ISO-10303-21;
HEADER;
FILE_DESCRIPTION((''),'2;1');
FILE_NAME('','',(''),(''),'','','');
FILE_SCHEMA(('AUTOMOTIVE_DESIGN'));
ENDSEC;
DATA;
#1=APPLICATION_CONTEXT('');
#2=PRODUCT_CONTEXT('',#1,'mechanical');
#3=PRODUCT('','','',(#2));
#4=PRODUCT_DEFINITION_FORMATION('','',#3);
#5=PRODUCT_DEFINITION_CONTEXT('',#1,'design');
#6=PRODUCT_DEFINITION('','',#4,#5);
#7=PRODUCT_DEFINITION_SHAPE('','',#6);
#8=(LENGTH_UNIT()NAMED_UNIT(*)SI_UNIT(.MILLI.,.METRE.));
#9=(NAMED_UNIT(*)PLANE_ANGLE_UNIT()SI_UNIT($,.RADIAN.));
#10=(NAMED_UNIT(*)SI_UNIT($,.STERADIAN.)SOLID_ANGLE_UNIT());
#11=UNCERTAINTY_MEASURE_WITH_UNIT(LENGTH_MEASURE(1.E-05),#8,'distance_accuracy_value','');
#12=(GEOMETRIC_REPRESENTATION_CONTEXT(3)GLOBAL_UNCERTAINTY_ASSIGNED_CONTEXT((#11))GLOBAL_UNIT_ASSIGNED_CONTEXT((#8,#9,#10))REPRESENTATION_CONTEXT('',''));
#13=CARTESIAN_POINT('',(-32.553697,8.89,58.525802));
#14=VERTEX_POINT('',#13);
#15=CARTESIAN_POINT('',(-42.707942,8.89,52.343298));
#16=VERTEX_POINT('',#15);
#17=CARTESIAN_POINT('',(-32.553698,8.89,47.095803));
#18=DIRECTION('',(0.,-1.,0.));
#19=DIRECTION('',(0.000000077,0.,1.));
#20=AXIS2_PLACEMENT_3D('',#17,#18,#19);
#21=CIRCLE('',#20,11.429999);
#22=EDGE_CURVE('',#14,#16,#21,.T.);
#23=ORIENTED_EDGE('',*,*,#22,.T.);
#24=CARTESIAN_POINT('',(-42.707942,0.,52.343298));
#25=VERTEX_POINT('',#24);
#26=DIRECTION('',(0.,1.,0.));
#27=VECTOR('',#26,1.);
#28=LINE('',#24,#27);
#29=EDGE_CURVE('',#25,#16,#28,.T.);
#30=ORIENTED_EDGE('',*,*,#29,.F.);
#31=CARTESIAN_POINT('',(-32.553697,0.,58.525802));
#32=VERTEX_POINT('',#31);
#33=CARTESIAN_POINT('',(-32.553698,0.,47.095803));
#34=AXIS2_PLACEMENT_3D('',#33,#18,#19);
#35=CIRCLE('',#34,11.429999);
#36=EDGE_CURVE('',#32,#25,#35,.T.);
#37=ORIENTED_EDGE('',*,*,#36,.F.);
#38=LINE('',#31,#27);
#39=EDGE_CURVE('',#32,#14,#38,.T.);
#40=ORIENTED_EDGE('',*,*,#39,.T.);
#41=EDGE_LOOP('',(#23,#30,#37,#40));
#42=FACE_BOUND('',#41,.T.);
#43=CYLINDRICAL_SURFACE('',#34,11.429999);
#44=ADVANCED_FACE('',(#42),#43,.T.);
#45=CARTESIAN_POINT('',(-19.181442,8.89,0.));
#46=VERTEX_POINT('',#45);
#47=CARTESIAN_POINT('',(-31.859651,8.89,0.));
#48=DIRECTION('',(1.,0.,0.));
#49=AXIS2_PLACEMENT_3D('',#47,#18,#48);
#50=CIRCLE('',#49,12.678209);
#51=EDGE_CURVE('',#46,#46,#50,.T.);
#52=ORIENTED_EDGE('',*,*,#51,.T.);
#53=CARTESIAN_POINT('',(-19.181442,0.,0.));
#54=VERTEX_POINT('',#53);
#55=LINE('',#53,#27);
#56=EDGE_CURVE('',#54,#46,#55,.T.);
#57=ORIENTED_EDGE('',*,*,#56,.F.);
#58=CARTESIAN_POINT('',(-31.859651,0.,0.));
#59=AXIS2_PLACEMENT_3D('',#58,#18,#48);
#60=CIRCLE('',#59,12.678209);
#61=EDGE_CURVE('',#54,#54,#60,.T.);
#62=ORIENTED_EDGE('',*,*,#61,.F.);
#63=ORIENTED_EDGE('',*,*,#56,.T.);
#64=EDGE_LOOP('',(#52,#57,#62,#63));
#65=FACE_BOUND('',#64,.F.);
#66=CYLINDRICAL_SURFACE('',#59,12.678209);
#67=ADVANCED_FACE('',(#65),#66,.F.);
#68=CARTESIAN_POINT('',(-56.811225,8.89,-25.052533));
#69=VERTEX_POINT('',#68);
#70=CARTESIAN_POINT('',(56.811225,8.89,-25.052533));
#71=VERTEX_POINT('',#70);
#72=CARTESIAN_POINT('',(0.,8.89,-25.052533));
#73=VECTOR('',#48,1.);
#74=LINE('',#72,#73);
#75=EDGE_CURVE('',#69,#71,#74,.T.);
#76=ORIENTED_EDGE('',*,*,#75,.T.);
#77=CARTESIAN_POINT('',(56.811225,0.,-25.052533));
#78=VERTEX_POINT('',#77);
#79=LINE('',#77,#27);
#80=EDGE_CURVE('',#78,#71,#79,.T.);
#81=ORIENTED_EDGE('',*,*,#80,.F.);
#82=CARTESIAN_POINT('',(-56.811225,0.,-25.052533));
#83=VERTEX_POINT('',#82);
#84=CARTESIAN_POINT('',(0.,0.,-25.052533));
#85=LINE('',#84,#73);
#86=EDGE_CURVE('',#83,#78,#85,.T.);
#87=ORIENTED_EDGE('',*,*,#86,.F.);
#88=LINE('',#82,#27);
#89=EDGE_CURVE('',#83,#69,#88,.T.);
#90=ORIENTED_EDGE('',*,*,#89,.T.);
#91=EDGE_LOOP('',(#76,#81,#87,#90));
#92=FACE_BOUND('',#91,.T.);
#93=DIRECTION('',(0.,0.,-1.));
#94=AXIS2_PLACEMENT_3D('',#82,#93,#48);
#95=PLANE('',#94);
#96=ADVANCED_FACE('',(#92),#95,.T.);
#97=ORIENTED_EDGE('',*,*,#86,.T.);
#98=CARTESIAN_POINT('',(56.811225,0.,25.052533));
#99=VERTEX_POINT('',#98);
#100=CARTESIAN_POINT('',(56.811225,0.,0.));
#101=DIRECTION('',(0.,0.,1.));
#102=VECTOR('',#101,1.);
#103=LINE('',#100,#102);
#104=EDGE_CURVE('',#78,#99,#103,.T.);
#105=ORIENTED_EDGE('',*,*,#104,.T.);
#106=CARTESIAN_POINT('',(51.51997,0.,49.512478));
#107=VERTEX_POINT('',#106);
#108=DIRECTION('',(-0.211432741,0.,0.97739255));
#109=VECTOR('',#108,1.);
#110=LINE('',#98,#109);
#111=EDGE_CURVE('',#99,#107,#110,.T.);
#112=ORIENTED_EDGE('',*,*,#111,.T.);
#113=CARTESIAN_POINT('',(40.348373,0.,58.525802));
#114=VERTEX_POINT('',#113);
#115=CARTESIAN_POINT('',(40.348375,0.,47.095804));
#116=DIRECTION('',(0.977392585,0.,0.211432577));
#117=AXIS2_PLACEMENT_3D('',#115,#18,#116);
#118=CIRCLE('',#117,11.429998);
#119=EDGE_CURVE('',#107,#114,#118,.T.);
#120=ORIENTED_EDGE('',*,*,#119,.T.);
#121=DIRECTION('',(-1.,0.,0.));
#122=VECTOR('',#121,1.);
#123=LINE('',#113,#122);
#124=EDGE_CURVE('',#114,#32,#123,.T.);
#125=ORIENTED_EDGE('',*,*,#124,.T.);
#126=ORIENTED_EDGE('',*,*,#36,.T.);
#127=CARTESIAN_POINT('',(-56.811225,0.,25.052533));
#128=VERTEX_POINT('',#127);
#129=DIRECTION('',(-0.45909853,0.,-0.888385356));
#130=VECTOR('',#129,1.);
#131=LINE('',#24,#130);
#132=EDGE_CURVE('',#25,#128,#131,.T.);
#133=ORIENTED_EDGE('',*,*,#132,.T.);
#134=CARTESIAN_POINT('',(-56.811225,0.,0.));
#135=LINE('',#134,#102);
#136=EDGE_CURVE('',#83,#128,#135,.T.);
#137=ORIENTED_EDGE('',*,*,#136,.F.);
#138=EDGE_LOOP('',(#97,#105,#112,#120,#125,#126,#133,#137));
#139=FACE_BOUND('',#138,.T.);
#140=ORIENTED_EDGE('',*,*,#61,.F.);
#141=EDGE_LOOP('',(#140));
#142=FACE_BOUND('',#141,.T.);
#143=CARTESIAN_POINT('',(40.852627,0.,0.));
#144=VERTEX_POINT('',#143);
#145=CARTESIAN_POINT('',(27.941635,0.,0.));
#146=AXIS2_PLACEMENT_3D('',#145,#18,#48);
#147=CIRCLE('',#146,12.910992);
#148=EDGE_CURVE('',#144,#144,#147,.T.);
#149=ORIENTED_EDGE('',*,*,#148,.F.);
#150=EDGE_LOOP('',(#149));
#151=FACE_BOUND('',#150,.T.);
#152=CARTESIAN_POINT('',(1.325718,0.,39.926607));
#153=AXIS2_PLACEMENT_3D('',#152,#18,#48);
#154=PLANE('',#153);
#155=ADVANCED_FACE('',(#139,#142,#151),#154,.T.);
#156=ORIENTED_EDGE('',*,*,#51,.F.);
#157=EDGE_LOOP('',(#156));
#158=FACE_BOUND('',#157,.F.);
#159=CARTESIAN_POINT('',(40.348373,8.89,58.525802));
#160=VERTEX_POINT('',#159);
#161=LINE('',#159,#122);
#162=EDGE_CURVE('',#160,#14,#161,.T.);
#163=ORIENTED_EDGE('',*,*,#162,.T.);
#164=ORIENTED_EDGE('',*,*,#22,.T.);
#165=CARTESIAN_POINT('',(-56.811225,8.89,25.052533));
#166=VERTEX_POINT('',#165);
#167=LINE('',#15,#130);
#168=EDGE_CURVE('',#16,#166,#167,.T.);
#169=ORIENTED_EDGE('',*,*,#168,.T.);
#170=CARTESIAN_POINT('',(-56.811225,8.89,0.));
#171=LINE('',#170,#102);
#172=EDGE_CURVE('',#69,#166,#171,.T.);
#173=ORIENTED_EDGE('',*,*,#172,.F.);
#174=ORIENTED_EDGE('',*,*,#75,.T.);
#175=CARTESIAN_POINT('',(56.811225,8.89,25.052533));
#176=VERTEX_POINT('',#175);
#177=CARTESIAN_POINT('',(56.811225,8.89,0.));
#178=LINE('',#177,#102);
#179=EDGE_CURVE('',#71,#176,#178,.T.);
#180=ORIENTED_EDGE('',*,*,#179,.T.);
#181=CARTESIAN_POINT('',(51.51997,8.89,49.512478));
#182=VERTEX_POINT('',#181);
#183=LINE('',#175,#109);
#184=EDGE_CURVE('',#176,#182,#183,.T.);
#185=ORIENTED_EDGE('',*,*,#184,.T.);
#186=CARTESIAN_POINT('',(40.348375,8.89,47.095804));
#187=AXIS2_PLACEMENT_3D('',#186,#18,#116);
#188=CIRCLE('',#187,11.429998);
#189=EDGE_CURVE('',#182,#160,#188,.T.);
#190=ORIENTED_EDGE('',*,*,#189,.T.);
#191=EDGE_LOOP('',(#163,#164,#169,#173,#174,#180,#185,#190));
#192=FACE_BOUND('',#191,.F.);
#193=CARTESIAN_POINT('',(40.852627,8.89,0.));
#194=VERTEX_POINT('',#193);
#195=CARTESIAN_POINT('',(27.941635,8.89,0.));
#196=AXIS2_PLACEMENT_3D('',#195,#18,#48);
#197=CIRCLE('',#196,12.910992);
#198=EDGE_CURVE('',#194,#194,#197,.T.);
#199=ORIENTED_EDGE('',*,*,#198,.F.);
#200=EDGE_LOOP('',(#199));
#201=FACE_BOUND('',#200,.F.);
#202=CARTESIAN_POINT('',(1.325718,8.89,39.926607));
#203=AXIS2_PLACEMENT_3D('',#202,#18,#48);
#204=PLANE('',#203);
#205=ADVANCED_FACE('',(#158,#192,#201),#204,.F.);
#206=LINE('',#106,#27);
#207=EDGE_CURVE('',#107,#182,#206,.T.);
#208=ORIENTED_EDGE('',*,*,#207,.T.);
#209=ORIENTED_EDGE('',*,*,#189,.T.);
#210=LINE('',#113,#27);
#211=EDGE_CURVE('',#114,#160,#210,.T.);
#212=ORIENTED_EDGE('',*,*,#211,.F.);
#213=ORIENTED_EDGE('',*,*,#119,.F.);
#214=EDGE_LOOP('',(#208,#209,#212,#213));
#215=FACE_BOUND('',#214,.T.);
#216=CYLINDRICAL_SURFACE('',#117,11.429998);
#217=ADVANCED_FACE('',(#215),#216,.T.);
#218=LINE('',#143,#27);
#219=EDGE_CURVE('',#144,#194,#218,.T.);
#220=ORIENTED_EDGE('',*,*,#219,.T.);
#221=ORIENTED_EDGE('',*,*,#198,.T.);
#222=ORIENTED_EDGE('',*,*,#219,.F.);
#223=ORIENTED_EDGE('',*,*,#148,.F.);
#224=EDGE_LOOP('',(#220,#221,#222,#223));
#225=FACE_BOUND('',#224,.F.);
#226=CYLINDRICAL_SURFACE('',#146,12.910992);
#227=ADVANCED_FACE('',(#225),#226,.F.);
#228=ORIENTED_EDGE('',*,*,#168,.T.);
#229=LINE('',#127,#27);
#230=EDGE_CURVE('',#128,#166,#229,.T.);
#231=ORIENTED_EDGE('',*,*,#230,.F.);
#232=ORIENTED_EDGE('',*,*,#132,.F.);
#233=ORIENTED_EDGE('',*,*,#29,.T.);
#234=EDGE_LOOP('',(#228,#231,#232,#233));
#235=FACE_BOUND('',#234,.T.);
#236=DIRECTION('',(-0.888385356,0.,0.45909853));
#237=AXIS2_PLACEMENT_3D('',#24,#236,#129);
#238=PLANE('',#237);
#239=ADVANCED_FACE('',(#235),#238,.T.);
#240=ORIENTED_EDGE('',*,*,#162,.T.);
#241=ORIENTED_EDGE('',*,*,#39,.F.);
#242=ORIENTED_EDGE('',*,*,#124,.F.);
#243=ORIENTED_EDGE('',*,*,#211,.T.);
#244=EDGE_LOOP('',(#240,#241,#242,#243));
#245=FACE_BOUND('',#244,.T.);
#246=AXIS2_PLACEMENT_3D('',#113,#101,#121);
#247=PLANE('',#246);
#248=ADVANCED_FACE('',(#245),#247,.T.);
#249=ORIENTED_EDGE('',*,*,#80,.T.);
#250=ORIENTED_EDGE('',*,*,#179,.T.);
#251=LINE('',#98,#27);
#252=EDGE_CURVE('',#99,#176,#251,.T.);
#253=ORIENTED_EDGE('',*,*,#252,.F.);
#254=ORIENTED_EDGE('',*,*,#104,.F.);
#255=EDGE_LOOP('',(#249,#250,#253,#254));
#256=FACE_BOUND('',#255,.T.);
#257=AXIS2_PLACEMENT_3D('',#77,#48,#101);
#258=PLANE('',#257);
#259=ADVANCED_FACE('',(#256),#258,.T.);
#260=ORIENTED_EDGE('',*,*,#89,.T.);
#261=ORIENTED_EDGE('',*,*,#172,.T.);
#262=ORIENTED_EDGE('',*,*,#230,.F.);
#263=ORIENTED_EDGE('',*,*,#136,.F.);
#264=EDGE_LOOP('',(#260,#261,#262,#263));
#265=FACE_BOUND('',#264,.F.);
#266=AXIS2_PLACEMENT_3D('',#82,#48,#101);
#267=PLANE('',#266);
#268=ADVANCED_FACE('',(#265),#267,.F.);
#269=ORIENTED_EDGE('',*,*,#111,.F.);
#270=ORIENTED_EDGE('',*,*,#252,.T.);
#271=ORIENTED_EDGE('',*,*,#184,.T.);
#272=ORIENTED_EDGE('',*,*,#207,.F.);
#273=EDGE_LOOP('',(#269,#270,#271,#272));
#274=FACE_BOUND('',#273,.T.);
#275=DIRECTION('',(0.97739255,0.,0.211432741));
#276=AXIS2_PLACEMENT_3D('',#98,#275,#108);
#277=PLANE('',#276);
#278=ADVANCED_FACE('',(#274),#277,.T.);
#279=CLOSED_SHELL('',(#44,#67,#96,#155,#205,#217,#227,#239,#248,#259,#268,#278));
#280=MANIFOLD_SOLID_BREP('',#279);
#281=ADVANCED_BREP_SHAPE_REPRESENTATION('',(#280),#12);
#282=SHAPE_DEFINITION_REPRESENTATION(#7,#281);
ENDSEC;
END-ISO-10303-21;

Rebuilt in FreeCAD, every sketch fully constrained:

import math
import FreeCAD as App
import Part
import Sketcher

V = App.Vector
Q = App.Units.Quantity

doc = App.newDocument("Part")
body = doc.addObject("PartDesign::Body", "Body")

# Sketch on XZ plane
sketch1 = body.newObject("Sketcher::SketchObject", "Sketch")
sketch1.AttachmentSupport = (doc.getObject("XZ_Plane"), [""])
sketch1.MapMode = "FlatFace"
sketch1.addGeometry(Part.LineSegment(V(-43, 52, 0), V(-57, 25, 0)), False)
sketch1.addGeometry(Part.LineSegment(V(-57, 25, 0), V(-57, -25, 0)), False)
sketch1.addGeometry(Part.LineSegment(V(-57, -25, 0), V(57, -25, 0)), False)
sketch1.addGeometry(Part.LineSegment(V(57, -25, 0), V(57, 25, 0)), False)
sketch1.addGeometry(Part.LineSegment(V(57, 25, 0), V(52, 50, 0)), False)
sketch1.addGeometry(Part.ArcOfCircle(Part.Circle(V(40, 47, 0), V(0, 0, 1), 11), math.radians(12), math.radians(90)), False)
sketch1.addGeometry(Part.LineSegment(V(40, 59, 0), V(-33, 59, 0)), False)
sketch1.addGeometry(Part.ArcOfCircle(Part.Circle(V(-33, 47, 0), V(0, 0, 1), 11), math.radians(90), math.radians(153)), False)
sketch1.addGeometry(Part.Circle(V(-32, 0, 0), V(0, 0, 1), 13), False)
sketch1.addGeometry(Part.Circle(V(28, 0, 0), V(0, 0, 1), 13), False)
sketch1.addConstraint(Sketcher.Constraint("Coincident", 0, 2, 1, 1))
sketch1.addConstraint(Sketcher.Constraint("Coincident", 1, 2, 2, 1))
sketch1.addConstraint(Sketcher.Constraint("Coincident", 2, 2, 3, 1))
sketch1.addConstraint(Sketcher.Constraint("Coincident", 3, 2, 4, 1))
sketch1.addConstraint(Sketcher.Constraint("Tangent", 4, 2, 5, 1))
sketch1.addConstraint(Sketcher.Constraint("Tangent", 5, 2, 6, 1))
sketch1.addConstraint(Sketcher.Constraint("Tangent", 6, 2, 7, 1))
sketch1.addConstraint(Sketcher.Constraint("Tangent", 7, 2, 0, 1))
sketch1.addConstraint(Sketcher.Constraint("Vertical", 1))
sketch1.addConstraint(Sketcher.Constraint("Horizontal", 2))
sketch1.addConstraint(Sketcher.Constraint("Vertical", 3))
sketch1.addConstraint(Sketcher.Constraint("Horizontal", 6))
sketch1.addConstraint(Sketcher.Constraint("Equal", 5, 7))
sketch1.addConstraint(Sketcher.Constraint("Symmetric", 0, 2, 2, 2, -1, 1))
sketch1.addConstraint(Sketcher.Constraint("PointOnObject", 8, 3, -1))
sketch1.addConstraint(Sketcher.Constraint("PointOnObject", 9, 3, -1))
sketch1.addConstraint(Sketcher.Constraint("Horizontal", 0, 2, 3, 2))
sketch1.addConstraint(Sketcher.Constraint("Radius", 5, Q("0.4499999 in")))
sketch1.addConstraint(Sketcher.Constraint("Diameter", 8, 25.356418))
sketch1.addConstraint(Sketcher.Constraint("Diameter", 9, 25.821984))
sketch1.addConstraint(Sketcher.Constraint("DistanceX", 2, 1, 2, 2, 113.62245))
sketch1.addConstraint(Sketcher.Constraint("DistanceX", 6, 2, 6, 1, 72.90207))
sketch1.addConstraint(Sketcher.Constraint("DistanceY", -1, 1, 5, 2, 58.525802))
sketch1.addConstraint(Sketcher.Constraint("DistanceY", -1, 1, 7, 2, 52.343298))
sketch1.addConstraint(Sketcher.Constraint("DistanceX", 0, 2, 5, 3, 97.1596))
sketch1.addConstraint(Sketcher.Constraint("DistanceX", 8, 3, -1, 1, 31.859651))
sketch1.addConstraint(Sketcher.Constraint("DistanceX", 9, 3, 5, 3, 12.40674))
pad1 = body.newObject("PartDesign::Pad", "Pad")
pad1.Profile = sketch1
pad1.Length = Q("0.35 in")
pad1.Reversed = True

doc.recompute()
